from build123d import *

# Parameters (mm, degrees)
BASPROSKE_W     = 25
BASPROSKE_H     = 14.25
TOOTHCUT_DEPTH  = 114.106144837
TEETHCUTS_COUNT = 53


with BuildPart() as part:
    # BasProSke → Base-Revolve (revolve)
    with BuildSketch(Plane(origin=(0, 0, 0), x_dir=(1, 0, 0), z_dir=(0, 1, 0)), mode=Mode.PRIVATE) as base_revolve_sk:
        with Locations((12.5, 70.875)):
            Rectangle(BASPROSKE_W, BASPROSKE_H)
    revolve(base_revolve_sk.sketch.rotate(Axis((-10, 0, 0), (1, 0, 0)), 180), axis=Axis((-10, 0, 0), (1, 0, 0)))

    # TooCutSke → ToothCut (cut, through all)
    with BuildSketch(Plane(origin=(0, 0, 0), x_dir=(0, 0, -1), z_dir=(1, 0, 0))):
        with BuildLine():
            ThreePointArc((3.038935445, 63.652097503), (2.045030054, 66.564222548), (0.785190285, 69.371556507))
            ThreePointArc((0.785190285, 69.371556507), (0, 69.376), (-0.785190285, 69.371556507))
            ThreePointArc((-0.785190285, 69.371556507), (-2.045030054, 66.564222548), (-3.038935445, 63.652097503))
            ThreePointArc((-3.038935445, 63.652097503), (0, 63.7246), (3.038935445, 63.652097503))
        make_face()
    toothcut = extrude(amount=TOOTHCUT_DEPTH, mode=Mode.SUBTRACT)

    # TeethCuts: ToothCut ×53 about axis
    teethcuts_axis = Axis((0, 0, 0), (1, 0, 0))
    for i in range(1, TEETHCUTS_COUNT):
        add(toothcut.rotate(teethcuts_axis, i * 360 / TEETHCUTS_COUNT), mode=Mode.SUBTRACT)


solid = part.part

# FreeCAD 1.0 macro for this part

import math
import FreeCAD as App
import Part
import Sketcher

V = App.Vector
Q = App.Units.Quantity

doc = App.newDocument("Part")
body = doc.addObject("PartDesign::Body", "Body")

sketch1 = body.newObject("Sketcher::SketchObject", "Sketch")
sketch1.AttachmentSupport = (doc.getObject("XZ_Plane"), [""])
sketch1.MapMode = "FlatFace"
sketch1.addGeometry([
    Part.LineSegment(V(0, -78, 0), V(0, -64, 0)),
    Part.LineSegment(V(0, -64, 0), V(25, -64, 0)),
    Part.LineSegment(V(25, -64, 0), V(25, -78, 0)),
    Part.LineSegment(V(25, -78, 0), V(0, -78, 0)),
], False)
sketch1.addConstraint([
    Sketcher.Constraint("Coincident", 0, 2, 1, 1),
    Sketcher.Constraint("Coincident", 1, 2, 2, 1),
    Sketcher.Constraint("Coincident", 2, 2, 3, 1),
    Sketcher.Constraint("Coincident", 3, 2, 0, 1),
    Sketcher.Constraint("Vertical", 0),
    Sketcher.Constraint("Horizontal", 1),
    Sketcher.Constraint("Vertical", 2),
    Sketcher.Constraint("Horizontal", 3),
    Sketcher.Constraint("PointOnObject", 0, 2, -2),
    Sketcher.Constraint("DistanceX", 1, 1, 1, 2, Q("25 mm")),
    Sketcher.Constraint("DistanceY", 2, 2, -1, 1, Q("78 mm")),
    Sketcher.Constraint("DistanceY", 0, 1, 0, 2, Q("14.25 mm")),
])
revolution = body.newObject("PartDesign::Revolution", "Revolution")
revolution.Profile = sketch1
revolution.ReferenceAxis = (sketch1, ["H_Axis"])
revolution.Angle = 360

sketch2 = body.newObject("Sketcher::SketchObject", "Sketch001")
sketch2.AttachmentSupport = (doc.getObject("YZ_Plane"), [""])
sketch2.MapMode = "FlatFace"
sketch2.addGeometry([
    Part.ArcOfCircle(Part.Circle(V(54.4, 28.8, 0), V(0, 0, 1), 33.1), math.radians(-73.82), math.radians(-63.17)),
    Part.ArcOfCircle(Part.Circle(V(0, 0, 0), V(0, 0, 1), 69.4), math.radians(-0.65), math.radians(0.65)),
    Part.ArcOfCircle(Part.Circle(V(54.4, -28.8, 0), V(0, 0, 1), 33.1), math.radians(63.17), math.radians(73.82)),
    Part.ArcOfCircle(Part.Circle(V(0, 0, 0), V(0, 0, 1), 63.7), math.radians(-2.73), math.radians(2.73)),
], False)
sketch2.addConstraint([
    Sketcher.Constraint("Coincident", 0, 2, 1, 1),
    Sketcher.Constraint("Coincident", 1, 2, 2, 1),
    Sketcher.Constraint("Coincident", 2, 2, 3, 2),
    Sketcher.Constraint("Coincident", 3, 1, 0, 1),
    Sketcher.Constraint("Coincident", 1, 3, -1, 1),
    Sketcher.Constraint("Coincident", 3, 3, -1, 1),
    Sketcher.Constraint("Equal", 0, 2),
    Sketcher.Constraint("Symmetric", 0, 3, 2, 3, -1),
    Sketcher.Constraint("Radius", 0, Q("33.125 mm")),
    Sketcher.Constraint("Radius", 1, Q("69.375999 mm")),
    Sketcher.Constraint("Radius", 3, Q("63.7246 mm")),
    Sketcher.Constraint("DistanceY", -1, 1, 0, 3, Q("28.7736 mm")),
    Sketcher.Constraint("DistanceY", 0, 2, -1, 1, Q("0.78519 mm")),
])
pocket1 = body.newObject("PartDesign::Pocket", "Pocket")
pocket1.Profile = sketch2
pocket1.Type = "ThroughAll"
pocket1.Reversed = True
doc.recompute()

polarpattern = body.newObject("PartDesign::PolarPattern", "PolarPattern")
polarpattern.Originals = [pocket1]
polarpattern.Axis = (doc.getObject("X_Axis"), [""])
polarpattern.Angle = 360
polarpattern.Occurrences = 53
body.Tip = polarpattern

doc.recompute()
